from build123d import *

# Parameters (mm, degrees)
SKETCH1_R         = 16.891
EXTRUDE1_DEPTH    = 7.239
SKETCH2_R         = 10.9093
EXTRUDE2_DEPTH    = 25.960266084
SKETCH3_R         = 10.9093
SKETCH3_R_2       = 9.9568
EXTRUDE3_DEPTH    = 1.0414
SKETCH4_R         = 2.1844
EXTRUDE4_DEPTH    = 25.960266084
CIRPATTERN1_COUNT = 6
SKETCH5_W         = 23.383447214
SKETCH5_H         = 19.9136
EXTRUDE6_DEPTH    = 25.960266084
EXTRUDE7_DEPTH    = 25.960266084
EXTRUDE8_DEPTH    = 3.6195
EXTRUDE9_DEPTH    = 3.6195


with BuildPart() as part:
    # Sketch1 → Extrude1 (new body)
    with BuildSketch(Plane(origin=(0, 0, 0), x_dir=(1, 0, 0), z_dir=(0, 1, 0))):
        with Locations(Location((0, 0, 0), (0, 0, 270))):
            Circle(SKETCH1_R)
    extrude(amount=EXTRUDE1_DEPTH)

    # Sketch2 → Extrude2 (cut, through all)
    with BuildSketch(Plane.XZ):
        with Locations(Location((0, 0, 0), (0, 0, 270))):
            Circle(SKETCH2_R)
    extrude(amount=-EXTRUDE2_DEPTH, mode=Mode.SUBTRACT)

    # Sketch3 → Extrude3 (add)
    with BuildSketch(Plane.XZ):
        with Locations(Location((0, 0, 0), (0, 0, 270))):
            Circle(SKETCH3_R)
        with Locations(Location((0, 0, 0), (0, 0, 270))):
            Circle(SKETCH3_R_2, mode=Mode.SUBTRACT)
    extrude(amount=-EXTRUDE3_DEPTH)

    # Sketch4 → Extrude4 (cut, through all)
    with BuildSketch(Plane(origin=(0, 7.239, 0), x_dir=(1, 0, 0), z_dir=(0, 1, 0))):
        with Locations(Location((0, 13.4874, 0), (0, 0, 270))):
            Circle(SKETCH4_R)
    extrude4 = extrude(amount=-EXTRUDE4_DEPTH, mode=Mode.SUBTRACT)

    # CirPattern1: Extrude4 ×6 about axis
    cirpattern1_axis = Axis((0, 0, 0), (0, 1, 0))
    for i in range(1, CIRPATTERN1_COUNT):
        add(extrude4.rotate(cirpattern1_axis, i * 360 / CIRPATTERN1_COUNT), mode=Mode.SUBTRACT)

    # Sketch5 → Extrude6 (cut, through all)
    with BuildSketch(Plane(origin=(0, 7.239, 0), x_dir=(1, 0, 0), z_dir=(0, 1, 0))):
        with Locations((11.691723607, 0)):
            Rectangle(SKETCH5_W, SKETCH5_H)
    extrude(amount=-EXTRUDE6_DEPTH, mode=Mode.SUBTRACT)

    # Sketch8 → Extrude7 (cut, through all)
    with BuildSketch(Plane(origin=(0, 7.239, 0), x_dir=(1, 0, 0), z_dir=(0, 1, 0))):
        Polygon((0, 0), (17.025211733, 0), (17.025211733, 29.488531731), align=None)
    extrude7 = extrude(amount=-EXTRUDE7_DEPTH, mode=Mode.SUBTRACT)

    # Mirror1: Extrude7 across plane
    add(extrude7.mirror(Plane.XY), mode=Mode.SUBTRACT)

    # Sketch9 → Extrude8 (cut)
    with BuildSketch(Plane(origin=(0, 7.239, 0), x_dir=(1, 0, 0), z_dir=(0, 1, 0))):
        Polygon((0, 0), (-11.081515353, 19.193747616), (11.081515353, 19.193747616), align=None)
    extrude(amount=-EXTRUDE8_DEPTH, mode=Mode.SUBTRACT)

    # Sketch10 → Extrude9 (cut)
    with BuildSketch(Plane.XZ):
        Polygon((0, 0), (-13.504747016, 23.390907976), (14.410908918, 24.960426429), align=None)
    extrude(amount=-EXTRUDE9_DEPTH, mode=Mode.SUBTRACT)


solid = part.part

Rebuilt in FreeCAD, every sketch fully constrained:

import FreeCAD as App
import Part
import Sketcher
Q = App.Units.Quantity

doc = App.newDocument("Part")
params = doc.addObject("Spreadsheet::Sheet", "Params")
for row, (alias, value) in enumerate([
    ("sketch1_diameter", "1.33 in"),
    ("pad1_length", "0.285 in"),
    ("sketch2_diameter", "0.859 in"),
    ("sketch3_diameter", "0.859 in"),
    ("sketch3_diameter2", "0.784 in"),
    ("pad2_length", "0.041 in"),
    ("sketch4_diameter", "0.172 in"),
    ("sketch5_height", "0.784 in"),
    ("pocket5_length", "0.1425 in"),
    ("pocket6_length", "0.1425 in"),
], start=1):
    params.set(f"A{row}", alias)
    params.set(f"B{row}", "=" + value)
    params.setAlias(f"B{row}", alias)

body = doc.addObject("PartDesign::Body", "Body")

# Sketch on XZ plane
sketch1 = body.newObject("Sketcher::SketchObject", "Sketch")
sketch1.AttachmentSupport = (doc.getObject("XZ_Plane"), [""])
sketch1.MapMode = "FlatFace"
sketch1.addGeometry(Part.Circle(App.Vector(0, 0, 0), App.Vector(0, 0, 1), 17), False)
sketch1.addConstraint(Sketcher.Constraint("Coincident", 0, 3, -1, 1))
sketch1.addConstraint(Sketcher.Constraint("Diameter", 0, Q("1.33 in")))
sketch1.setExpression("Constraints[1]", "Params.sketch1_diameter")
pad1 = body.newObject("PartDesign::Pad", "Pad")
pad1.Profile = sketch1
pad1.setExpression("Length", "Params.pad1_length")
pad1.Reversed = True

# Sketch on XZ plane
sketch2 = body.newObject("Sketcher::SketchObject", "Sketch001")
sketch2.AttachmentSupport = (doc.getObject("XZ_Plane"), [""])
sketch2.MapMode = "FlatFace"
sketch2.addGeometry(Part.Circle(App.Vector(0, 0, 0), App.Vector(0, 0, 1), 11), False)
sketch2.addConstraint(Sketcher.Constraint("Coincident", 0, 3, -1, 1))
sketch2.addConstraint(Sketcher.Constraint("Diameter", 0, Q("0.859 in")))
sketch2.setExpression("Constraints[1]", "Params.sketch2_diameter")
pocket1 = body.newObject("PartDesign::Pocket", "Pocket")
pocket1.Profile = sketch2
pocket1.Type = "ThroughAll"

# Sketch on XZ plane
sketch3 = body.newObject("Sketcher::SketchObject", "Sketch002")
sketch3.AttachmentSupport = (doc.getObject("XZ_Plane"), [""])
sketch3.MapMode = "FlatFace"
sketch3.addGeometry(Part.Circle(App.Vector(0, 0, 0), App.Vector(0, 0, 1), 11), False)
sketch3.addGeometry(Part.Circle(App.Vector(0, 0, 0), App.Vector(0, 0, 1), 10), False)
sketch3.addConstraint(Sketcher.Constraint("Coincident", 0, 3, -1, 1))
sketch3.addConstraint(Sketcher.Constraint("Coincident", 1, 3, -1, 1))
sketch3.addConstraint(Sketcher.Constraint("Diameter", 0, Q("0.859 in")))
sketch3.addConstraint(Sketcher.Constraint("Diameter", 1, Q("0.784 in")))
sketch3.setExpression("Constraints[2]", "Params.sketch3_diameter")
sketch3.setExpression("Constraints[3]", "Params.sketch3_diameter2")
pad2 = body.newObject("PartDesign::Pad", "Pad001")
pad2.Profile = sketch3
pad2.setExpression("Length", "Params.pad2_length")
pad2.Reversed = True

# Sketch on XZ plane
sketch4 = body.newObject("Sketcher::SketchObject", "Sketch003")
sketch4.AttachmentSupport = (doc.getObject("XZ_Plane"), [""])
sketch4.MapMode = "FlatFace"
sketch4.AttachmentOffset = App.Placement(App.Vector(0, 0, -0.285 * 25.4), App.Rotation())
sketch4.addGeometry(Part.Circle(App.Vector(0, -13.5, 0), App.Vector(0, 0, 1), 2.2), False)
sketch4.addConstraint(Sketcher.Constraint("PointOnObject", 0, 3, -2))
sketch4.addConstraint(Sketcher.Constraint("Diameter", 0, Q("0.172 in")))
sketch4.addConstraint(Sketcher.Constraint("DistanceY", 0, 3, -1, 1, Q("0.531 in")))
sketch4.setExpression("Constraints[1]", "Params.sketch4_diameter")
pocket2 = body.newObject("PartDesign::Pocket", "Pocket001")
pocket2.Profile = sketch4
pocket2.Type = "ThroughAll"
pocket2.Reversed = True
doc.recompute()

polarpattern = body.newObject("PartDesign::PolarPattern", "PolarPattern")
polarpattern.Originals = [pocket2]
polarpattern.Axis = (doc.getObject("Y_Axis"), [""])
polarpattern.Angle = 360
polarpattern.Occurrences = 6
body.Tip = polarpattern

# Sketch on XZ plane
sketch5 = body.newObject("Sketcher::SketchObject", "Sketch004")
sketch5.AttachmentSupport = (doc.getObject("XZ_Plane"), [""])
sketch5.MapMode = "FlatFace"
sketch5.AttachmentOffset = App.Placement(App.Vector(0, 0, -0.285 * 25.4), App.Rotation())
sketch5.addGeometry(Part.LineSegment(App.Vector(0, -10, 0), App.Vector(0, 10, 0)), False)
sketch5.addGeometry(Part.LineSegment(App.Vector(0, 10, 0), App.Vector(23, 10, 0)), False)
sketch5.addGeometry(Part.LineSegment(App.Vector(23, 10, 0), App.Vector(23, -10, 0)), False)
sketch5.addGeometry(Part.LineSegment(App.Vector(23, -10, 0), App.Vector(0, -10, 0)), False)
sketch5.addConstraint(Sketcher.Constraint("Coincident", 0, 2, 1, 1))
sketch5.addConstraint(Sketcher.Constraint("Coincident", 1, 2, 2, 1))
sketch5.addConstraint(Sketcher.Constraint("Coincident", 2, 2, 3, 1))
sketch5.addConstraint(Sketcher.Constraint("Coincident", 3, 2, 0, 1))
sketch5.addConstraint(Sketcher.Constraint("Vertical", 0))
sketch5.addConstraint(Sketcher.Constraint("Horizontal", 1))
sketch5.addConstraint(Sketcher.Constraint("Vertical", 2))
sketch5.addConstraint(Sketcher.Constraint("Horizontal", 3))
sketch5.addConstraint(Sketcher.Constraint("Symmetric", 0, 2, 3, 2, -1, 1))
sketch5.addConstraint(Sketcher.Constraint("DistanceY", 0, 1, 0, 2, Q("0.784 in")))
sketch5.addConstraint(Sketcher.Constraint("DistanceX", 1, 1, 1, 2, Q("23.383447 mm")))
sketch5.setExpression("Constraints[9]", "Params.sketch5_height")
pocket3 = body.newObject("PartDesign::Pocket", "Pocket002")
pocket3.Profile = sketch5
pocket3.Type = "ThroughAll"
pocket3.Reversed = True

# Sketch on XZ plane
sketch6 = body.newObject("Sketcher::SketchObject", "Sketch005")
sketch6.AttachmentSupport = (doc.getObject("XZ_Plane"), [""])
sketch6.MapMode = "FlatFace"
sketch6.AttachmentOffset = App.Placement(App.Vector(0, 0, -0.285 * 25.4), App.Rotation())
sketch6.addGeometry(Part.LineSegment(App.Vector(0, 0, 0), App.Vector(17, 0, 0)), False)
sketch6.addGeometry(Part.LineSegment(App.Vector(17, 0, 0), App.Vector(17, -29, 0)), False)
sketch6.addGeometry(Part.LineSegment(App.Vector(17, -29, 0), App.Vector(0, 0, 0)), False)
sketch6.addConstraint(Sketcher.Constraint("Coincident", 0, 2, 1, 1))
sketch6.addConstraint(Sketcher.Constraint("Coincident", 1, 2, 2, 1))
sketch6.addConstraint(Sketcher.Constraint("Coincident", 2, 2, 0, 1))
sketch6.addConstraint(Sketcher.Constraint("Horizontal", 0))
sketch6.addConstraint(Sketcher.Constraint("Vertical", 1))
sketch6.addConstraint(Sketcher.Constraint("Coincident", 2, 2, -1, 1))
sketch6.addConstraint(Sketcher.Constraint("Angle", 2, Q("120 deg")))
sketch6.addConstraint(Sketcher.Constraint("DistanceX", 0, 1, 0, 2, Q("17.025212 mm")))
pocket4 = body.newObject("PartDesign::Pocket", "Pocket003")
pocket4.Profile = sketch6
pocket4.Type = "ThroughAll"
pocket4.Reversed = True
doc.recompute()

mirrored = body.newObject("PartDesign::Mirrored", "Mirrored")
mirrored.Originals = [pocket4]
mirrored.MirrorPlane = (doc.getObject("XY_Plane"), [""])
body.Tip = mirrored

# Sketch on XZ plane
sketch7 = body.newObject("Sketcher::SketchObject", "Sketch006")
sketch7.AttachmentSupport = (doc.getObject("XZ_Plane"), [""])
sketch7.MapMode = "FlatFace"
sketch7.AttachmentOffset = App.Placement(App.Vector(0, 0, -0.285 * 25.4), App.Rotation())
sketch7.addGeometry(Part.LineSegment(App.Vector(-11, -19, 0), App.Vector(0, 0, 0)), False)
sketch7.addGeometry(Part.LineSegment(App.Vector(0, 0, 0), App.Vector(11, -19, 0)), False)
sketch7.addGeometry(Part.LineSegment(App.Vector(11, -19, 0), App.Vector(-11, -19, 0)), False)
sketch7.addConstraint(Sketcher.Constraint("Coincident", 0, 2, 1, 1))
sketch7.addConstraint(Sketcher.Constraint("Coincident", 1, 2, 2, 1))
sketch7.addConstraint(Sketcher.Constraint("Coincident", 2, 2, 0, 1))
sketch7.addConstraint(Sketcher.Constraint("Horizontal", 2))
sketch7.addConstraint(Sketcher.Constraint("Coincident", 0, 2, -1, 1))
sketch7.addConstraint(Sketcher.Constraint("Equal", 0, 1))
sketch7.addConstraint(Sketcher.Constraint("Angle", 0, Q("60 deg")))
sketch7.addConstraint(Sketcher.Constraint("DistanceX", 2, 2, 2, 1, Q("22.163031 mm")))
pocket5 = body.newObject("PartDesign::Pocket", "Pocket004")
pocket5.Profile = sketch7
pocket5.setExpression("Length", "Params.pocket5_length")
pocket5.Reversed = True

# Sketch on XZ plane
sketch8 = body.newObject("Sketcher::SketchObject", "Sketch007")
sketch8.AttachmentSupport = (doc.getObject("XZ_Plane"), [""])
sketch8.MapMode = "FlatFace"
sketch8.addGeometry(Part.LineSegment(App.Vector(-14, 23, 0), App.Vector(0, 0, 0)), False)
sketch8.addGeometry(Part.LineSegment(App.Vector(0, 0, 0), App.Vector(14, 25, 0)), False)
sketch8.addGeometry(Part.LineSegment(App.Vector(14, 25, 0), App.Vector(-14, 23, 0)), False)
sketch8.addConstraint(Sketcher.Constraint("Coincident", 0, 2, 1, 1))
sketch8.addConstraint(Sketcher.Constraint("Coincident", 1, 2, 2, 1))
sketch8.addConstraint(Sketcher.Constraint("Coincident", 2, 2, 0, 1))
sketch8.addConstraint(Sketcher.Constraint("Coincident", 0, 2, -1, 1))
sketch8.addConstraint(Sketcher.Constraint("Angle", 0, Q("-60 deg")))
sketch8.addConstraint(Sketcher.Constraint("Angle", 1, Q("60 deg")))
sketch8.addConstraint(Sketcher.Constraint("DistanceX", -1, 1, 1, 2, Q("14.410909 mm")))
sketch8.addConstraint(Sketcher.Constraint("DistanceY", 2, 2, 1, 2, Q("1.569518 mm")))
pocket6 = body.newObject("PartDesign::Pocket", "Pocket005")
pocket6.Profile = sketch8
pocket6.setExpression("Length", "Params.pocket6_length")

doc.recompute()
